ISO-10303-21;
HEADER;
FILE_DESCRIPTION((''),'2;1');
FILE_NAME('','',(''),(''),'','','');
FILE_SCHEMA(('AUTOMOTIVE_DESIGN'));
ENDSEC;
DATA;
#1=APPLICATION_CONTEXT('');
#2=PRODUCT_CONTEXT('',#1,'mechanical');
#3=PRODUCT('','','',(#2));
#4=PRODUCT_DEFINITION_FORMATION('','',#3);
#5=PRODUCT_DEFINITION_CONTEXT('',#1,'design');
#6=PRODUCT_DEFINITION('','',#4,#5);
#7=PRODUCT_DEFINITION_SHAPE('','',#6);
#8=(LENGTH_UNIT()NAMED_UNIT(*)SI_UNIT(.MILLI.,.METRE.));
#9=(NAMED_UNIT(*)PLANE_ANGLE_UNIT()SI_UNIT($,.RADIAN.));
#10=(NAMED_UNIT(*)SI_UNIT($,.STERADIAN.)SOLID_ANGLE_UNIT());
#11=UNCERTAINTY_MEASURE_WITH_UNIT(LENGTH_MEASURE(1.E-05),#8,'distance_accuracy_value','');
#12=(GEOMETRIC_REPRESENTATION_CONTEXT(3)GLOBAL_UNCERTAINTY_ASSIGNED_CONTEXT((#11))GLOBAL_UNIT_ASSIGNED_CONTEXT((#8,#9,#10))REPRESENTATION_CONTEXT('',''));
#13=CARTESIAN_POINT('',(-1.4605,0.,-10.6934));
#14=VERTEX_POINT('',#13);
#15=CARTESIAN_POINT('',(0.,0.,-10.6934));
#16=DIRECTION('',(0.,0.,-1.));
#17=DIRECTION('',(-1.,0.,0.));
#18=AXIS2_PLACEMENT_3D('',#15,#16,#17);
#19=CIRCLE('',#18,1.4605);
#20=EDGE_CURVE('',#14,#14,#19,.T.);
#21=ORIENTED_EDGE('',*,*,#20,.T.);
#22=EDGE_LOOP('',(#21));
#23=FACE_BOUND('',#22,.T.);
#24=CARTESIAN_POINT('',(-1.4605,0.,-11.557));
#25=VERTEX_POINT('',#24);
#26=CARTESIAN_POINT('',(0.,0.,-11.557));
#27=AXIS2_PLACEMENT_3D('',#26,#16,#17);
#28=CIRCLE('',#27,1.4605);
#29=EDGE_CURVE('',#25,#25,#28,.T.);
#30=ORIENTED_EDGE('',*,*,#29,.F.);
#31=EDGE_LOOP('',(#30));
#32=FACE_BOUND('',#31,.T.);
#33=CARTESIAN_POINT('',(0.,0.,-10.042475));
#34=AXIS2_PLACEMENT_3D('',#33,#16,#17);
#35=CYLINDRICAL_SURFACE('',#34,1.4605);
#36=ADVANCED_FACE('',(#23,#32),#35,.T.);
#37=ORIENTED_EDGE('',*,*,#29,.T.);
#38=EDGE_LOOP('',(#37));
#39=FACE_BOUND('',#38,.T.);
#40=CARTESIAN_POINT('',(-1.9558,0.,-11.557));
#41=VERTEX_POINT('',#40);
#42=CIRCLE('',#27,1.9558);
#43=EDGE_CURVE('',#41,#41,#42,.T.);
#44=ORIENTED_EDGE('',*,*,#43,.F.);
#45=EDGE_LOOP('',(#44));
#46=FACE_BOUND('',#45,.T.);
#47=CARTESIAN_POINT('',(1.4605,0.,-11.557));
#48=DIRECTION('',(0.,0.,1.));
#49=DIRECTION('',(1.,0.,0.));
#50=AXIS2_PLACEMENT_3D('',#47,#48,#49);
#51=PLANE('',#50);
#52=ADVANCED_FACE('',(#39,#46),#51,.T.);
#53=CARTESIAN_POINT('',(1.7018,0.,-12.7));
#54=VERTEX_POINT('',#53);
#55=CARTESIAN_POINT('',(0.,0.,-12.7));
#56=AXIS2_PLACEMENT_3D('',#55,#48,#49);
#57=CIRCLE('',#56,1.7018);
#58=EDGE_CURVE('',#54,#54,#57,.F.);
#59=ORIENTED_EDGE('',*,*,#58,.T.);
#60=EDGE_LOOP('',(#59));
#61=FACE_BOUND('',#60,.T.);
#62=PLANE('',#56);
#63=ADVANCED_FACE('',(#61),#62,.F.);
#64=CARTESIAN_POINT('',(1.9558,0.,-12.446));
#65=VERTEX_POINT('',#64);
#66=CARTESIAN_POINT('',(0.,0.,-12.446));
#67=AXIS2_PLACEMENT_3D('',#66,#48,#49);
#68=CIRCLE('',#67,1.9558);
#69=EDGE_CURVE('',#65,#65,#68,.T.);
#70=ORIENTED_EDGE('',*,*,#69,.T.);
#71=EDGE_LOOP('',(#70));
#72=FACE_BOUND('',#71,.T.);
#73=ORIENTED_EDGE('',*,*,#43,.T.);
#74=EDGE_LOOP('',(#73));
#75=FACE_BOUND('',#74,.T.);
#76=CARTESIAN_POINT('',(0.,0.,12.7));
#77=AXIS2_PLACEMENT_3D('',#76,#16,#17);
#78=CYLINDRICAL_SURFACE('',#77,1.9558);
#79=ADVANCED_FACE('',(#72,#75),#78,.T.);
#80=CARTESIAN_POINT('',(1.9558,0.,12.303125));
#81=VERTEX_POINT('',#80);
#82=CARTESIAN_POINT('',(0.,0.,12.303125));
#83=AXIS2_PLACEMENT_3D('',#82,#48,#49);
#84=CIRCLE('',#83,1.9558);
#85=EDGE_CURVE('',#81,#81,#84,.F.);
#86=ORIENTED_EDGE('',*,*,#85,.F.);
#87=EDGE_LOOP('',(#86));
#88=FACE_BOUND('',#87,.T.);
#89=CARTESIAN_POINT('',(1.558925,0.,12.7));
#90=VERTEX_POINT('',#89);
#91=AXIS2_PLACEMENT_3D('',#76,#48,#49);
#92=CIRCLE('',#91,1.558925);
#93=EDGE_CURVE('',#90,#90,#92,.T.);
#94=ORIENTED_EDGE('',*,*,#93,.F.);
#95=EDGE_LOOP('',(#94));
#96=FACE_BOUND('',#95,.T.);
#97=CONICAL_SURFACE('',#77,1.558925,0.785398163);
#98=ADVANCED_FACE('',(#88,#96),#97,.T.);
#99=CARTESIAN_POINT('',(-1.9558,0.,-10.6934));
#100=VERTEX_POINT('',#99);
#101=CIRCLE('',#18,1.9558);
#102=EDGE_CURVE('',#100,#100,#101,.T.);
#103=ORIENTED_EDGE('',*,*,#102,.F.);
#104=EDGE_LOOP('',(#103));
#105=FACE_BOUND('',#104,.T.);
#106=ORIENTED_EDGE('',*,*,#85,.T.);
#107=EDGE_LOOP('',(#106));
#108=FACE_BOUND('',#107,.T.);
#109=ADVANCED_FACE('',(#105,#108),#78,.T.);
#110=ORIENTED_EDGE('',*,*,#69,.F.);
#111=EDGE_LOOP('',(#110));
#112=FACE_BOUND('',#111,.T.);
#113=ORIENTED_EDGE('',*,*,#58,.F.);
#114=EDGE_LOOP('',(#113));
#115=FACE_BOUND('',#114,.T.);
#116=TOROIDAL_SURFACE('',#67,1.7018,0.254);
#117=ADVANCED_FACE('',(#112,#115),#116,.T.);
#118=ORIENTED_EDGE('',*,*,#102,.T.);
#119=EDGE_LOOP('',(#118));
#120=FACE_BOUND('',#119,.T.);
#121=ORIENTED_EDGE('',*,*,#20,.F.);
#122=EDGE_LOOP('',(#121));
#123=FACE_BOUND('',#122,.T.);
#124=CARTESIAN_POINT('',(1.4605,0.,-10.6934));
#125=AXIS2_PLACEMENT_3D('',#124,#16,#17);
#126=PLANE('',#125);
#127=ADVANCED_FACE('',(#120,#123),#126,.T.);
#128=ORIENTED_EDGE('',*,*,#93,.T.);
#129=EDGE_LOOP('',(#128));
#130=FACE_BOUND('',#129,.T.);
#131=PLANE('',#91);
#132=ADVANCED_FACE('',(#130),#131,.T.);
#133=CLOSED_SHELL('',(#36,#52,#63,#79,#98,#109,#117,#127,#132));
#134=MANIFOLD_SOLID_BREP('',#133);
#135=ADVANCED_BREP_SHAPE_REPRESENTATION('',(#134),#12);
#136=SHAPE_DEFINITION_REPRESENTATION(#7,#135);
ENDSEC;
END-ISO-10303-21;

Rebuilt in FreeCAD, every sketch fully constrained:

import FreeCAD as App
import Part
import Sketcher
from FreeCAD import Vector
Q = App.Units.Quantity


def edges_at(feature, points):
    """Names of the edges that pass closest to the given points."""
    edges = feature.Shape.Edges
    near = lambda p: min(range(len(edges)), key=lambda i: edges[i].distToShape(Part.Vertex(*p))[0])
    return sorted({f"Edge{near(p) + 1}" for p in points})


def add_polygon(sketch, points):
    """Adds a closed chain of lines whose ends are joined by coincident constraints."""
    first, n = sketch.GeometryCount, len(points)
    for a, b in zip(points, points[1:] + points[:1]):
        sketch.addGeometry(Part.LineSegment(App.Vector(*a, 0), App.Vector(*b, 0)), False)
    for i in range(n):
        sketch.addConstraint(Sketcher.Constraint("Coincident", first + i, 2, first + (i + 1) % n, 1))

doc = App.newDocument("Part")
body = doc.addObject("PartDesign::Body", "Body")

# Sketch on XY plane
sketch1 = body.newObject("Sketcher::SketchObject", "Sketch")
sketch1.AttachmentSupport = (doc.getObject("XY_Plane"), [""])
sketch1.MapMode = "FlatFace"
sketch1.addGeometry(Part.Circle(Vector(0, 0, 0), Vector(0, 0, 1), 2), False)
sketch1.addConstraint(Sketcher.Constraint("Coincident", 0, 3, -1, 1))
sketch1.addConstraint(Sketcher.Constraint("Diameter", 0, Q("0.154 in")))
pad1 = body.newObject("PartDesign::Pad", "Pad")
pad1.Profile = sketch1
pad1.Length = Q("1 in")
pad1.Midplane = True

# Sketch on XZ plane
sketch2 = body.newObject("Sketcher::SketchObject", "Sketch001")
sketch2.AttachmentSupport = (doc.getObject("XZ_Plane"), [""])
sketch2.MapMode = "FlatFace"
add_polygon(sketch2, [(1.46, -11.56), (1.46, -10.69), (1.96, -10.69), (1.96, -11.56)])  # lines 0-3
sketch2.addConstraint(Sketcher.Constraint("Vertical", 0))
sketch2.addConstraint(Sketcher.Constraint("Horizontal", 1))
sketch2.addConstraint(Sketcher.Constraint("Vertical", 2))
sketch2.addConstraint(Sketcher.Constraint("Horizontal", 3))
sketch2.addConstraint(Sketcher.Constraint("DistanceY", 0, 1, 0, 2, Q("0.034 in")))
sketch2.addConstraint(Sketcher.Constraint("DistanceX", 1, 1, 1, 2, Q("0.0195 in")))
sketch2.addConstraint(Sketcher.Constraint("DistanceY", 0, 2, -1, 1, Q("0.421 in")))
sketch2.addConstraint(Sketcher.Constraint("DistanceX", -1, 1, 1, 2, Q("0.077 in")))
groove = body.newObject("PartDesign::Groove", "Groove")
groove.Profile = sketch2
groove.ReferenceAxis = (sketch2, ["V_Axis"])
groove.Angle = 360
doc.recompute()

fillet = body.newObject("PartDesign::Fillet", "Fillet")
fillet.Base = (groove, edges_at(groove, [(-1.956, 0, -12.7)]))
fillet.Radius = Q("0.01 in")
doc.recompute()

chamfer = body.newObject("PartDesign::Chamfer", "Chamfer")
chamfer.Base = (fillet, edges_at(fillet, [(-1.956, 0, 12.7)]))
chamfer.Size = Q("0.015625 in")

doc.recompute()
